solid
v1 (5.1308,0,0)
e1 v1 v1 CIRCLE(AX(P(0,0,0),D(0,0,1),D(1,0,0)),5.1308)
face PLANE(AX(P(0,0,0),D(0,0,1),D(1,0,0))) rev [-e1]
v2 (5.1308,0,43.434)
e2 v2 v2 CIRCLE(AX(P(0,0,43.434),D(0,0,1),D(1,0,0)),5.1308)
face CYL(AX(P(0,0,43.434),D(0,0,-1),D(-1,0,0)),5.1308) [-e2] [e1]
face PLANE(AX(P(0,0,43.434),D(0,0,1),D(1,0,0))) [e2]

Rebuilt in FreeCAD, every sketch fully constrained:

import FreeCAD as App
import Part
import Sketcher
from FreeCAD import Vector
Q = App.Units.Quantity

doc = App.newDocument("Part")
body = doc.addObject("PartDesign::Body", "Body")

# Sketch on XY plane
sketch1 = body.newObject("Sketcher::SketchObject", "Sketch")
sketch1.AttachmentSupport = (doc.getObject("XY_Plane"), [""])
sketch1.MapMode = "FlatFace"
sketch1.addGeometry(Part.Circle(Vector(0, 0, 0), Vector(0, 0, 1), 5), False)
sketch1.addConstraint([
    Sketcher.Constraint("Coincident", 0, 3, -1, 1),
    Sketcher.Constraint("Diameter", 0, Q("0.404 in")),
])
pad1 = body.newObject("PartDesign::Pad", "Pad")
pad1.Profile = sketch1
pad1.Length = Q("1.71 in")

doc.recompute()
